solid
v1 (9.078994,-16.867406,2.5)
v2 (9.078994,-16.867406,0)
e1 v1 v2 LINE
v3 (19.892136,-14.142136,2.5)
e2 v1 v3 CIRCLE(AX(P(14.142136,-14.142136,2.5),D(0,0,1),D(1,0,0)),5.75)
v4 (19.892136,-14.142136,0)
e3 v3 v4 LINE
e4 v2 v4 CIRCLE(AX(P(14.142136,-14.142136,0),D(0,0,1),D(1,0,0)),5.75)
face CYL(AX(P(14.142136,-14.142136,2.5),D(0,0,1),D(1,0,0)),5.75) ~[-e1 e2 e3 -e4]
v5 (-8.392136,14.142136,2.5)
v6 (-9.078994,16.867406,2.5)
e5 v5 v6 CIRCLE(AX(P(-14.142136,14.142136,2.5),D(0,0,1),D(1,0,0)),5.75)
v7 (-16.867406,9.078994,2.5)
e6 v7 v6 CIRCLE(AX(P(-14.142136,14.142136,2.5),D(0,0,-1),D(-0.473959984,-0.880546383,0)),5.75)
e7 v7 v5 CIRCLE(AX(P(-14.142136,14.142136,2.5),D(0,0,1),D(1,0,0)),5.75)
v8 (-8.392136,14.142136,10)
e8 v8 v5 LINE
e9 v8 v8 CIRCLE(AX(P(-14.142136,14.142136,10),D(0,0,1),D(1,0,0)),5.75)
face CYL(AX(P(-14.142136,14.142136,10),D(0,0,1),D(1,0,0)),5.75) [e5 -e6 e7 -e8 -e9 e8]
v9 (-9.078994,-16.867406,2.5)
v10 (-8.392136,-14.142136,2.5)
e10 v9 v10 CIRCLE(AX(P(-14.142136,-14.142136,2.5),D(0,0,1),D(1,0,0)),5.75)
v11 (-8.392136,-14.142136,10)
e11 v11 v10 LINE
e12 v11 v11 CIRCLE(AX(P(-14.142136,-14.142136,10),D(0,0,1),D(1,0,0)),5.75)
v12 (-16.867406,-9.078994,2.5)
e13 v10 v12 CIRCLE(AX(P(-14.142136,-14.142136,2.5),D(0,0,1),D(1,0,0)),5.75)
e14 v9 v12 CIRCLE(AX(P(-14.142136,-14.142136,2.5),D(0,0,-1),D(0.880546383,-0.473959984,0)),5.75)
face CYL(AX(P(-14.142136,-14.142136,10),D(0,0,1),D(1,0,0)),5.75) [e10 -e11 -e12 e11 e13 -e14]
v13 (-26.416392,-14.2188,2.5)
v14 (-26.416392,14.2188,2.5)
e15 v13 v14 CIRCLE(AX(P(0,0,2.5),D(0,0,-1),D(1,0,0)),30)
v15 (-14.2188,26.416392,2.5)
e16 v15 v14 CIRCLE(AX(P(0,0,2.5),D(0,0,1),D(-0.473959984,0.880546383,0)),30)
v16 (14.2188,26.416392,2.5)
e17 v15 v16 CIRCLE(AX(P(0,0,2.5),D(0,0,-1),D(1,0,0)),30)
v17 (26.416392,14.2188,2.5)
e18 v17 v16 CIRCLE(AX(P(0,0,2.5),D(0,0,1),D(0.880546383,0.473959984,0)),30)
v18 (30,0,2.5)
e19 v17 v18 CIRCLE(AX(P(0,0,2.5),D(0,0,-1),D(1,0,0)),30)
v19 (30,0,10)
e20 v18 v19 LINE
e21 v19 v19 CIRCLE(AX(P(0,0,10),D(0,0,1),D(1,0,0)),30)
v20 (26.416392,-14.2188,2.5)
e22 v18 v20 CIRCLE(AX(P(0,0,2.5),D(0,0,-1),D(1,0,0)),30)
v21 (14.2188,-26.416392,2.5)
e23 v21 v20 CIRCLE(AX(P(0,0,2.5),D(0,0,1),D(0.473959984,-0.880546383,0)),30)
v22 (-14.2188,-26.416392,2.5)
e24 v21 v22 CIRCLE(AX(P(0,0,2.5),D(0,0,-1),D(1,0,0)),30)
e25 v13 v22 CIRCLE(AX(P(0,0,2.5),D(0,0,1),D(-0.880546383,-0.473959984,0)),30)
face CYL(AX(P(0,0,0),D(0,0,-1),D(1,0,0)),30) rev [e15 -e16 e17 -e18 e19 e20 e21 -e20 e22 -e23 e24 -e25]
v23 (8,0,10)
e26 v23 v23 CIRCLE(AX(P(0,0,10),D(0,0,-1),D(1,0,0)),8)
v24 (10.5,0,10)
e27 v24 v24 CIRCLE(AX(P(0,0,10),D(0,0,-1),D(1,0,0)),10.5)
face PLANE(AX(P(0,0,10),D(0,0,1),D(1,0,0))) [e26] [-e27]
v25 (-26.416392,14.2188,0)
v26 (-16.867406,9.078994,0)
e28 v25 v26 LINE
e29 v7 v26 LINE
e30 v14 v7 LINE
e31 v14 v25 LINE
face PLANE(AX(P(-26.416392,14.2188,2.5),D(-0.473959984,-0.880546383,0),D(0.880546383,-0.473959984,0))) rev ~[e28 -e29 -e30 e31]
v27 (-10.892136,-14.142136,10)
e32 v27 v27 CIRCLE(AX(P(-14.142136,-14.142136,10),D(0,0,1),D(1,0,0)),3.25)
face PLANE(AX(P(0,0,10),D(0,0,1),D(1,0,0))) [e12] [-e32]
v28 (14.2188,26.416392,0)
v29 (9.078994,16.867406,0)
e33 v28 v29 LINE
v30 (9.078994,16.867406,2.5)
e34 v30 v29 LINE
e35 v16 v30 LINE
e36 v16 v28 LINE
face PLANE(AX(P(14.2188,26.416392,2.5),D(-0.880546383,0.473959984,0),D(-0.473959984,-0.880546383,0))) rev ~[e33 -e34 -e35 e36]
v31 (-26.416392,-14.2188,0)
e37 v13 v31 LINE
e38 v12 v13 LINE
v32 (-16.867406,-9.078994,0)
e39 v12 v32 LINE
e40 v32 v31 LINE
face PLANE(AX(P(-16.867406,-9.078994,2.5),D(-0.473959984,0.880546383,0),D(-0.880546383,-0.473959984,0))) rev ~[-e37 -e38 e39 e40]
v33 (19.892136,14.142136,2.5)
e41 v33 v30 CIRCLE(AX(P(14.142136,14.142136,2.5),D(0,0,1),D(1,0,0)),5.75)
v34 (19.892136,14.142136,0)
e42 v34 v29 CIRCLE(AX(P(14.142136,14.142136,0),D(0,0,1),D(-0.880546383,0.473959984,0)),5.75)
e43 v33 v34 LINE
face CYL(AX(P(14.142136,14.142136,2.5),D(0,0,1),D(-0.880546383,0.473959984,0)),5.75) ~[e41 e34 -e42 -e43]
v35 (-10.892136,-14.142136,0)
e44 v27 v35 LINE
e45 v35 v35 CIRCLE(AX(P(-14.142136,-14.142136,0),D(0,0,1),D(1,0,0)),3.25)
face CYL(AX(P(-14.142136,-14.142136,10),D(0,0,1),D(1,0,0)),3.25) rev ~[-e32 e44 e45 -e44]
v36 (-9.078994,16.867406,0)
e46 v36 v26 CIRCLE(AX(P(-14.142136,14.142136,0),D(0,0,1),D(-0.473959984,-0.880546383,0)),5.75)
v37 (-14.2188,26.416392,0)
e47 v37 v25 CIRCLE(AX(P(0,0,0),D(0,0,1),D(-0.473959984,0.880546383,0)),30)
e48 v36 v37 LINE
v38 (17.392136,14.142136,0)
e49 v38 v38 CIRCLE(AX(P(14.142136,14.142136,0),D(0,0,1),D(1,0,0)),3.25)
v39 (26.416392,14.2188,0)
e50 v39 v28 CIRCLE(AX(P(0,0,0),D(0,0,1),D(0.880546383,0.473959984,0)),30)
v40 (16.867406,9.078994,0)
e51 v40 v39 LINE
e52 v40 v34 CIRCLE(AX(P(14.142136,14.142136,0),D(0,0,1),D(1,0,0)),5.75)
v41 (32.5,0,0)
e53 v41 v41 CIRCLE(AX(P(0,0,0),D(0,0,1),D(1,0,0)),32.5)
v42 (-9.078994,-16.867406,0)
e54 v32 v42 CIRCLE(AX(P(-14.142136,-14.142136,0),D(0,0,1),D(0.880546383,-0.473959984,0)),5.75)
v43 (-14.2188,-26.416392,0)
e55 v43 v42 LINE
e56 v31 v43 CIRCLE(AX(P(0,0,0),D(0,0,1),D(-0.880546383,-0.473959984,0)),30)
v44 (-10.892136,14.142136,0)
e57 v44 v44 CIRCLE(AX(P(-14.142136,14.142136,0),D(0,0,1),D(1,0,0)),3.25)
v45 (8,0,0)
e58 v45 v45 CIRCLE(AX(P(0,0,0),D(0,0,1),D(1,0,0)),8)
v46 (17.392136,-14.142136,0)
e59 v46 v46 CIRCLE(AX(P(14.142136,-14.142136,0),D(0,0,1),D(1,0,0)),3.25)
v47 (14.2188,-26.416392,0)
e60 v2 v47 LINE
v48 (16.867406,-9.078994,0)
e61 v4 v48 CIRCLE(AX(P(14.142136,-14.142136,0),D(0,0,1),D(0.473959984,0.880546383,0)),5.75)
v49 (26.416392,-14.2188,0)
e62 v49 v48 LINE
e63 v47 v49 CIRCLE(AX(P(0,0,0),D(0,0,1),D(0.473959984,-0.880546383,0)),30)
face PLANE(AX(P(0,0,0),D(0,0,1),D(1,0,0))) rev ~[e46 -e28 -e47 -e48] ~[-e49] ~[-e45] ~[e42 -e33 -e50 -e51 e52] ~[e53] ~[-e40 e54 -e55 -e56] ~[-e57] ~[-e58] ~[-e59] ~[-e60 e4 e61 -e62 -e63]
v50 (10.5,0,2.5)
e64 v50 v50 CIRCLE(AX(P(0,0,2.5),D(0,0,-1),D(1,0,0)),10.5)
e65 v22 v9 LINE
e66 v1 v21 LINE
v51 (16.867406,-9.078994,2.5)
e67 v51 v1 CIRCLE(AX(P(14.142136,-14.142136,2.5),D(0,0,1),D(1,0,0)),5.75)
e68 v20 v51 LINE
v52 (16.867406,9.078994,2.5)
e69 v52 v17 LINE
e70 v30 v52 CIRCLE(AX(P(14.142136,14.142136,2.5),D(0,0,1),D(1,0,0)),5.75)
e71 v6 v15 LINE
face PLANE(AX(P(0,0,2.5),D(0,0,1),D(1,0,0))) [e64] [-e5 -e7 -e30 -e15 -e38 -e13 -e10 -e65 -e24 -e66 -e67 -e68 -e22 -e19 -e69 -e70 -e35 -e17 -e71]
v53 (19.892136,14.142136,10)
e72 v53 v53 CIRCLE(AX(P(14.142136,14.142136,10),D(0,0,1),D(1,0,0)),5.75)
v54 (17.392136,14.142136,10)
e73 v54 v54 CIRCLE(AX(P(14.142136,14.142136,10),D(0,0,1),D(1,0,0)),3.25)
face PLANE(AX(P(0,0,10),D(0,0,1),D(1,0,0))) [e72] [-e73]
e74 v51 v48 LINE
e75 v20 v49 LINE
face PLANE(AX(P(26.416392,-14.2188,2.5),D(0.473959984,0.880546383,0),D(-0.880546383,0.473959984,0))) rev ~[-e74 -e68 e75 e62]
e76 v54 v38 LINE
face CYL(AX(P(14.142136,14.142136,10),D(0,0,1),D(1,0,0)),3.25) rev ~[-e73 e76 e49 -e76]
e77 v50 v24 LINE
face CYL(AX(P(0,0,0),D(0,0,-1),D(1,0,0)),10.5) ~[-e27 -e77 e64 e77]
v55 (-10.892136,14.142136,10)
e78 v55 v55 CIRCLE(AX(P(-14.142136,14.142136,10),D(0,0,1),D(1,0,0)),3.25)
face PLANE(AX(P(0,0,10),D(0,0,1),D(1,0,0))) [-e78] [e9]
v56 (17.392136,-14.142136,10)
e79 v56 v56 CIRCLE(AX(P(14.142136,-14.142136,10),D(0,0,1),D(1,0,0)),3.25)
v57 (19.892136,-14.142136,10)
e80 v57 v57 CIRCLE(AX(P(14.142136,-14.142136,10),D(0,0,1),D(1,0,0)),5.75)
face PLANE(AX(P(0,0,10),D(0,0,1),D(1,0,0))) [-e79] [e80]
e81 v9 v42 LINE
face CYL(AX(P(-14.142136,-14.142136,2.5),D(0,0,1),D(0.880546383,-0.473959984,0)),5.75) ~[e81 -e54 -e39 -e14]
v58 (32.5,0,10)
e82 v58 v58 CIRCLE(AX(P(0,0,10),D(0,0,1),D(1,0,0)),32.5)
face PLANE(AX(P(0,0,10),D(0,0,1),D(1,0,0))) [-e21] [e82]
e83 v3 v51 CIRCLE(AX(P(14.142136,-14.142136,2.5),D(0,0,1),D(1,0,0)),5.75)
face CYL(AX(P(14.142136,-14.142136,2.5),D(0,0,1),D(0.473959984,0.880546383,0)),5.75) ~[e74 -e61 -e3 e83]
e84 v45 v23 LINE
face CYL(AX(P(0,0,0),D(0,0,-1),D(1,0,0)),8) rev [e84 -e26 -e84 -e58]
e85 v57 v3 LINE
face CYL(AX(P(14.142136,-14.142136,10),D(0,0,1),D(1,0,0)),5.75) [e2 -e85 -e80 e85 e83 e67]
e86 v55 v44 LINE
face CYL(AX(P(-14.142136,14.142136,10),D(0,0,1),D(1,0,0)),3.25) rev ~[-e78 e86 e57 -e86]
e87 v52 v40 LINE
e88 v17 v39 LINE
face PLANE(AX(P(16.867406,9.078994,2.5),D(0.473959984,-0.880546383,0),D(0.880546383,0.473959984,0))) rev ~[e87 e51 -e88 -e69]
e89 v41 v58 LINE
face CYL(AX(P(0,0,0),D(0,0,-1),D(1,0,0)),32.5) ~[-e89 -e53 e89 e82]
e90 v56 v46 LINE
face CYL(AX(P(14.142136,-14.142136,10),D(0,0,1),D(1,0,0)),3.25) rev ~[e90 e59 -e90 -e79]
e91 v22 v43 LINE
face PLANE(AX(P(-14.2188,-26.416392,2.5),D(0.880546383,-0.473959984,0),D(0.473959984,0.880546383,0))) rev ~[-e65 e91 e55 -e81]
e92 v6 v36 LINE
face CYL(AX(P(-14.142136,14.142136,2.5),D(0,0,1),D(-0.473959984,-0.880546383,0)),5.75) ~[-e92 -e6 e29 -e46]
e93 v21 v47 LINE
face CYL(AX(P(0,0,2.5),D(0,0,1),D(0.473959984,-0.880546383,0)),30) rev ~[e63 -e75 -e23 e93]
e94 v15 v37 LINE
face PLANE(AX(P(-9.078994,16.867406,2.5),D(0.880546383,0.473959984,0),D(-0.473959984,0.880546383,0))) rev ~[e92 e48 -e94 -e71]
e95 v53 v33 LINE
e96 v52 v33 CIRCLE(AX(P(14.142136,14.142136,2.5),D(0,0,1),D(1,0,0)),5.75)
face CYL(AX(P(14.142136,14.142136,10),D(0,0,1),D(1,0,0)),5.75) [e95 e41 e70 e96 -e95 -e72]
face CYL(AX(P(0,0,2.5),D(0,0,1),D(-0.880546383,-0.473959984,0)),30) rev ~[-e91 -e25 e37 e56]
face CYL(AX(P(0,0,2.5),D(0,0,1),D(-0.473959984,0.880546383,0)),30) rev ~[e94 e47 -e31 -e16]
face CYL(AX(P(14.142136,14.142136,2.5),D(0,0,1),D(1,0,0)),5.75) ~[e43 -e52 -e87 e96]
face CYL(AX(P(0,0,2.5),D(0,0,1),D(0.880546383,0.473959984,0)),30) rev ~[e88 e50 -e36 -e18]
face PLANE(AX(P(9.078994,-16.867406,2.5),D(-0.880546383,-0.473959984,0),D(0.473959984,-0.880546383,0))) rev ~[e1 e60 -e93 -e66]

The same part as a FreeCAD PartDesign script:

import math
import FreeCAD as App
import Part
import Sketcher

V = App.Vector
Q = App.Units.Quantity


def faces_at(feature, points):
    """Names of the faces that lie closest to the given points."""
    faces = feature.Shape.Faces
    near = lambda p: min(range(len(faces)), key=lambda i: faces[i].distToShape(Part.Vertex(*p))[0])
    return sorted({f"Face{near(p) + 1}" for p in points})

doc = App.newDocument("Part")
body = doc.addObject("PartDesign::Body", "Body")

sketch1 = doc.addObject("Sketcher::SketchObject", "Sketch")
body.addObject(sketch1)
sketch1.AttachmentSupport = (doc.XY_Plane, [""])
sketch1.MapMode = "FlatFace"
sketch1.addGeometry(Part.Circle(V(0, 0, 0), V(0, 0, 1), 32), False)
sketch1.addConstraint(Sketcher.Constraint("Coincident", 0, 3, -1, 1))
sketch1.addConstraint(Sketcher.Constraint("Diameter", 0, Q("65 mm")))
pad1 = doc.addObject("PartDesign::Pad", "Pad")
body.addObject(pad1)
pad1.Profile = sketch1
pad1.Length = 10

sketch2 = doc.addObject("Sketcher::SketchObject", "Sketch001")
body.addObject(sketch2)
sketch2.AttachmentSupport = (doc.XY_Plane, [""])
sketch2.MapMode = "FlatFace"
sketch2.addGeometry(Part.Circle(V(0, 0, 0), V(0, 0, 1), 8), False)
sketch2.addConstraint(Sketcher.Constraint("Coincident", 0, 3, -1, 1))
sketch2.addConstraint(Sketcher.Constraint("Diameter", 0, Q("16 mm")))
pocket1 = doc.addObject("PartDesign::Pocket", "Pocket")
body.addObject(pocket1)
pocket1.Profile = sketch2
pocket1.Length = 25
pocket1.Reversed = True

sketch3 = doc.addObject("Sketcher::SketchObject", "Sketch002")
body.addObject(sketch3)
sketch3.AttachmentSupport = (doc.XY_Plane, [""])
sketch3.MapMode = "FlatFace"
sketch3.AttachmentOffset = App.Placement(V(0, 0, 10), App.Rotation())
sketch3.addGeometry(Part.Circle(V(-14.1, 14.1, 0), V(0, 0, 1), 3.2), False)
sketch3.addGeometry(Part.Circle(V(-14.1, -14.1, 0), V(0, 0, 1), 3.2), False)
sketch3.addGeometry(Part.Circle(V(14.1, 14.1, 0), V(0, 0, 1), 3.2), False)
sketch3.addGeometry(Part.Circle(V(14.1, -14.1, 0), V(0, 0, 1), 3.2), False)
sketch3.addConstraint(Sketcher.Constraint("Equal", 0, 1))
sketch3.addConstraint(Sketcher.Constraint("Equal", 1, 2))
sketch3.addConstraint(Sketcher.Constraint("Equal", 2, 3))
sketch3.addConstraint(Sketcher.Constraint("Symmetric", 1, 3, 2, 3, -1, 1))
sketch3.addConstraint(Sketcher.Constraint("Symmetric", 0, 3, 3, 3, -1, 1))
sketch3.addConstraint(Sketcher.Constraint("Symmetric", 0, 3, 2, 3, -2))
sketch3.addConstraint(Sketcher.Constraint("Diameter", 0, Q("6.5 mm")))
sketch3.addConstraint(Sketcher.Constraint("DistanceY", 1, 3, 0, 3, Q("28.284271 mm")))
sketch3.addConstraint(Sketcher.Constraint("DistanceX", 0, 3, 2, 3, Q("28.284271 mm")))
pocket2 = doc.addObject("PartDesign::Pocket", "Pocket001")
body.addObject(pocket2)
pocket2.Profile = sketch3
pocket2.Length = 25
doc.recompute()

thickness = doc.addObject("PartDesign::Thickness", "Thickness")
body.addObject(thickness)
thickness.Base = (pocket2, faces_at(pocket2, [(-26, 0, 10)]))
thickness.Value = 2.5
thickness.Reversed = True
thickness.Join = "Arc"

sketch4 = doc.addObject("Sketcher::SketchObject", "Sketch003")
body.addObject(sketch4)
sketch4.AttachmentSupport = (doc.XY_Plane, [""])
sketch4.MapMode = "FlatFace"
sketch4.AttachmentOffset = App.Placement(V(0, 0, 2.5), App.Rotation())
sketch4.addGeometry(Part.ArcOfCircle(Part.Circle(V(14, 14, 0), V(0, 0, 1), 6), math.radians(-62), math.radians(0)), False)
sketch4.addGeometry(Part.LineSegment(V(17, 9, 0), V(26, 14, 0)), False)
sketch4.addGeometry(Part.ArcOfCircle(Part.Circle(V(0, 0, 0), V(0, 0, 1), 30), math.radians(28), math.radians(62)), False)
sketch4.addGeometry(Part.LineSegment(V(14, 26, 0), V(9, 17, 0)), False)
sketch4.addGeometry(Part.ArcOfCircle(Part.Circle(V(14, 14, 0), V(0, 0, 1), 6), math.radians(0), math.radians(152)), False)
sketch4.addGeometry(Part.LineSegment(V(-9, 17, 0), V(-14, 26, 0)), False)
sketch4.addGeometry(Part.ArcOfCircle(Part.Circle(V(0, 0, 0), V(0, 0, 1), 30), math.radians(118), math.radians(152)), False)
sketch4.addGeometry(Part.LineSegment(V(-26, 14, 0), V(-17, 9, 0)), False)
sketch4.addGeometry(Part.ArcOfCircle(Part.Circle(V(-14, 14, 0), V(0, 0, 1), 6), math.radians(28), math.radians(242)), False)
sketch4.addGeometry(Part.ArcOfCircle(Part.Circle(V(0, 0, 0), V(0, 0, 1), 30), math.radians(-62), math.radians(-28)), False)
sketch4.addGeometry(Part.LineSegment(V(26, -14, 0), V(17, -9, 0)), False)
sketch4.addGeometry(Part.ArcOfCircle(Part.Circle(V(14, -14, 0), V(0, 0, 1), 6), math.radians(0), math.radians(62)), False)
sketch4.addGeometry(Part.ArcOfCircle(Part.Circle(V(14, -14, 0), V(0, 0, 1), 6), math.radians(-152), math.radians(0)), False)
sketch4.addGeometry(Part.LineSegment(V(9, -17, 0), V(14, -26, 0)), False)
sketch4.addGeometry(Part.ArcOfCircle(Part.Circle(V(0, 0, 0), V(0, 0, 1), 30), math.radians(-152), math.radians(-118)), False)
sketch4.addGeometry(Part.LineSegment(V(-14, -26, 0), V(-9, -17, 0)), False)
sketch4.addGeometry(Part.ArcOfCircle(Part.Circle(V(-14, -14, 0), V(0, 0, 1), 6), math.radians(118), math.radians(332)), False)
sketch4.addGeometry(Part.LineSegment(V(-17, -9, 0), V(-26, -14, 0)), False)
sketch4.addConstraint(Sketcher.Constraint("Tangent", 0, 1, 1, 1))
sketch4.addConstraint(Sketcher.Constraint("Coincident", 1, 2, 2, 1))
sketch4.addConstraint(Sketcher.Constraint("Coincident", 2, 2, 3, 1))
sketch4.addConstraint(Sketcher.Constraint("Tangent", 3, 2, 4, 2))
sketch4.addConstraint(Sketcher.Constraint("Tangent", 4, 1, 0, 2))
sketch4.addConstraint(Sketcher.Constraint("Coincident", 5, 2, 6, 1))
sketch4.addConstraint(Sketcher.Constraint("Coincident", 6, 2, 7, 1))
sketch4.addConstraint(Sketcher.Constraint("Tangent", 7, 2, 8, 2))
sketch4.addConstraint(Sketcher.Constraint("Tangent", 8, 1, 5, 1))
sketch4.addConstraint(Sketcher.Constraint("Coincident", 9, 2, 10, 1))
sketch4.addConstraint(Sketcher.Constraint("Tangent", 10, 2, 11, 2))
sketch4.addConstraint(Sketcher.Constraint("Tangent", 11, 1, 12, 2))
sketch4.addConstraint(Sketcher.Constraint("Tangent", 12, 1, 13, 1))
sketch4.addConstraint(Sketcher.Constraint("Coincident", 13, 2, 9, 1))
sketch4.addConstraint(Sketcher.Constraint("Coincident", 14, 2, 15, 1))
sketch4.addConstraint(Sketcher.Constraint("Tangent", 15, 2, 16, 2))
sketch4.addConstraint(Sketcher.Constraint("Tangent", 16, 1, 17, 1))
sketch4.addConstraint(Sketcher.Constraint("Coincident", 17, 2, 14, 1))
sketch4.addConstraint(Sketcher.Constraint("Coincident", 2, 3, -1, 1))
sketch4.addConstraint(Sketcher.Constraint("Coincident", 6, 3, -1, 1))
sketch4.addConstraint(Sketcher.Constraint("Coincident", 9, 3, -1, 1))
sketch4.addConstraint(Sketcher.Constraint("Coincident", 14, 3, -1, 1))
sketch4.addConstraint(Sketcher.Constraint("Equal", 0, 4))
sketch4.addConstraint(Sketcher.Constraint("Equal", 2, 6))
sketch4.addConstraint(Sketcher.Constraint("Equal", 4, 8))
sketch4.addConstraint(Sketcher.Constraint("Equal", 6, 9))
sketch4.addConstraint(Sketcher.Constraint("Equal", 8, 11))
sketch4.addConstraint(Sketcher.Constraint("Equal", 11, 12))
sketch4.addConstraint(Sketcher.Constraint("Equal", 9, 14))
sketch4.addConstraint(Sketcher.Constraint("Equal", 12, 16))
sketch4.addConstraint(Sketcher.Constraint("Symmetric", 8, 3, 11, 3, -1, 1))
sketch4.addConstraint(Sketcher.Constraint("Symmetric", 0, 3, 16, 3, -1, 1))
sketch4.addConstraint(Sketcher.Constraint("Symmetric", 0, 3, 8, 3, -2))
sketch4.addConstraint(Sketcher.Constraint("Perpendicular", 1, 5))
sketch4.addConstraint(Sketcher.Constraint("Perpendicular", 3, 7))
sketch4.addConstraint(Sketcher.Constraint("Parallel", 7, 10))
sketch4.addConstraint(Sketcher.Constraint("Parallel", 5, 13))
sketch4.addConstraint(Sketcher.Constraint("Perpendicular", 10, 15))
sketch4.addConstraint(Sketcher.Constraint("Perpendicular", 13, 17))
sketch4.addConstraint(Sketcher.Constraint("Horizontal", 8, 3, 4, 1))
sketch4.addConstraint(Sketcher.Constraint("Horizontal", 2, 2, 5, 2))
sketch4.addConstraint(Sketcher.Constraint("Horizontal", 16, 3, 11, 1))
sketch4.addConstraint(Sketcher.Constraint("Equal", 1, 3))
sketch4.addConstraint(Sketcher.Constraint("Radius", 2, Q("30 mm")))
sketch4.addConstraint(Sketcher.Constraint("Radius", 0, Q("5.75 mm")))
sketch4.addConstraint(Sketcher.Constraint("DistanceY", -1, 1, 1, 2, Q("14.2188 mm")))
sketch4.addConstraint(Sketcher.Constraint("DistanceX", 8, 3, 0, 3, Q("28.284271 mm")))
pocket3 = doc.addObject("PartDesign::Pocket", "Pocket002")
body.addObject(pocket3)
pocket3.Profile = sketch4
pocket3.Length = 25

doc.recompute()
